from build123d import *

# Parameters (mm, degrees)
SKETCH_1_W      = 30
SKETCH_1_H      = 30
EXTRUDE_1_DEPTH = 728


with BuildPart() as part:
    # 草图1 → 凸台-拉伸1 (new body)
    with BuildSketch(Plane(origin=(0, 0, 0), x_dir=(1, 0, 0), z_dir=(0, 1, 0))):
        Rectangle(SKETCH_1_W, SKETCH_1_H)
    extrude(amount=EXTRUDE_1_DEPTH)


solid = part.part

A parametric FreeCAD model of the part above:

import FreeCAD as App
import Part
import Sketcher

V = App.Vector


def add_polygon(sketch, points):
    """Adds a closed chain of lines whose ends are joined by coincident constraints."""
    first, n = sketch.GeometryCount, len(points)
    for a, b in zip(points, points[1:] + points[:1]):
        sketch.addGeometry(Part.LineSegment(App.Vector(*a, 0), App.Vector(*b, 0)), False)
    for i in range(n):
        sketch.addConstraint(Sketcher.Constraint("Coincident", first + i, 2, first + (i + 1) % n, 1))

doc = App.newDocument("Part")
body = doc.addObject("PartDesign::Body", "Body")

sketch1 = doc.addObject("Sketcher::SketchObject", "Sketch")
body.addObject(sketch1)
sketch1.AttachmentSupport = (doc.XZ_Plane, [""])
sketch1.MapMode = "FlatFace"
add_polygon(sketch1, [(-15, -15), (-15, 15), (15, 15), (15, -15)])
sketch1.addConstraint(Sketcher.Constraint("Vertical", 0))
sketch1.addConstraint(Sketcher.Constraint("Horizontal", 1))
sketch1.addConstraint(Sketcher.Constraint("Vertical", 2))
sketch1.addConstraint(Sketcher.Constraint("Horizontal", 3))
sketch1.addConstraint(Sketcher.Constraint("Symmetric", 0, 2, 2, 2, -1, 1))
sketch1.addConstraint(Sketcher.Constraint("Equal", 3, 0))
sketch1.addConstraint(Sketcher.Constraint("DistanceX", 1, 1, 1, 2, 30.0))
pad1 = doc.addObject("PartDesign::Pad", "Pad")
body.addObject(pad1)
pad1.Profile = sketch1
pad1.Length = 728
pad1.Reversed = True

doc.recompute()
